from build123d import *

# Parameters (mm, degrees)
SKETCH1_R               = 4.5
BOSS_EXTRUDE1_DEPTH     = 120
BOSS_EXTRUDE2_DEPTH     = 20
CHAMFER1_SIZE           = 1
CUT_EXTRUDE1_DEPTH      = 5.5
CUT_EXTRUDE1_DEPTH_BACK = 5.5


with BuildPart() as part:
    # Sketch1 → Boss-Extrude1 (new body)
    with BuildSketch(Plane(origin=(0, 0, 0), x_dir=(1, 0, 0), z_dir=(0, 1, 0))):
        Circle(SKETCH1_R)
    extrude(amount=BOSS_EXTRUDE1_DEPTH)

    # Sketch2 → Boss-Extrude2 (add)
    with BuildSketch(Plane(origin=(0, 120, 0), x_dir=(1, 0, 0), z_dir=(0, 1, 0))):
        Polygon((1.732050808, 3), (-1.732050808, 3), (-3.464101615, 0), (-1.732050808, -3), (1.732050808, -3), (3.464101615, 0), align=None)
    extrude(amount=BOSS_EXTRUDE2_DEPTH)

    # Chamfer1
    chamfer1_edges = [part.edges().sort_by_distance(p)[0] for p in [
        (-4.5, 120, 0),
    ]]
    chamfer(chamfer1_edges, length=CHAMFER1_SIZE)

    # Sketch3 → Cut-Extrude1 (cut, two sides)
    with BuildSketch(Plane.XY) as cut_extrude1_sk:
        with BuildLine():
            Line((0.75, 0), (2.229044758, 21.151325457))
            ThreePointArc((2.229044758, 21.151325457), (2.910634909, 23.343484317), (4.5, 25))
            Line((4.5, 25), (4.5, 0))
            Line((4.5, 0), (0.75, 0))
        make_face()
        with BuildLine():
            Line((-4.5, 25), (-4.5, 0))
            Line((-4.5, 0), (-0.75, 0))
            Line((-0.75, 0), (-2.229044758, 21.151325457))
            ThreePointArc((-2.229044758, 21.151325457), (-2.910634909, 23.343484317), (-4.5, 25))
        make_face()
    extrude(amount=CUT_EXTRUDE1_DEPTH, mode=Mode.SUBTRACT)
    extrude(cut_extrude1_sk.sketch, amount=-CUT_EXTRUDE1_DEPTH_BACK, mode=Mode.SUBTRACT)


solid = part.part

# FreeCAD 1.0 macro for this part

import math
import FreeCAD as App
import Part
import Sketcher
Q = App.Units.Quantity


def edges_at(feature, points):
    """Names of the edges that pass closest to the given points."""
    edges = feature.Shape.Edges
    near = lambda p: min(range(len(edges)), key=lambda i: edges[i].distToShape(Part.Vertex(*p))[0])
    return sorted({f"Edge{near(p) + 1}" for p in points})


def add_polygon(sketch, points):
    """Adds a closed chain of lines whose ends are joined by coincident constraints."""
    first, n = sketch.GeometryCount, len(points)
    for a, b in zip(points, points[1:] + points[:1]):
        sketch.addGeometry(Part.LineSegment(App.Vector(*a, 0), App.Vector(*b, 0)), False)
    for i in range(n):
        sketch.addConstraint(Sketcher.Constraint("Coincident", first + i, 2, first + (i + 1) % n, 1))

doc = App.newDocument("Part")
body = doc.addObject("PartDesign::Body", "Body")

# Sketch on XZ plane
sketch1 = body.newObject("Sketcher::SketchObject", "Sketch")
sketch1.AttachmentSupport = (doc.getObject("XZ_Plane"), [""])
sketch1.MapMode = "FlatFace"
sketch1.addGeometry(Part.Circle(App.Vector(0, 0, 0), App.Vector(0, 0, 1), 4.5), False)
sketch1.addConstraint([
    Sketcher.Constraint("Coincident", 0, 3, -1, 1),
    Sketcher.Constraint("Diameter", 0, Q("9 mm")),
])
pad1 = body.newObject("PartDesign::Pad", "Pad")
pad1.Profile = sketch1
pad1.Length = 120
pad1.Reversed = True

# Sketch on XZ plane
sketch2 = body.newObject("Sketcher::SketchObject", "Sketch001")
sketch2.AttachmentSupport = (doc.getObject("XZ_Plane"), [""])
sketch2.MapMode = "FlatFace"
sketch2.AttachmentOffset = App.Placement(App.Vector(0, 0, -120), App.Rotation())
add_polygon(sketch2, [(1.732051, -3), (-1.732051, -3), (-3.464102, 0), (-1.732051, 3), (1.732051, 3), (3.464102, 0)])  # lines 0-5
sketch2.addConstraint([
    Sketcher.Constraint("Horizontal", 0),
    Sketcher.Constraint("Horizontal", 3),
    Sketcher.Constraint("Symmetric", 0, 2, 3, 2, -1, 1),
    Sketcher.Constraint("Symmetric", 1, 2, 4, 2, -1, 1),
    Sketcher.Constraint("PointOnObject", 1, 2, -1),
    Sketcher.Constraint("Parallel", 2, 5),
    Sketcher.Constraint("Vertical", 0, 2, 2, 2),
    Sketcher.Constraint("Angle", 1, Q("120 deg")),
    Sketcher.Constraint("DistanceY", 0, 2, -1, 1, Q("3 mm")),
    Sketcher.Constraint("DistanceX", 0, 2, 0, 1, Q("3.464102 mm")),
])
pad2 = body.newObject("PartDesign::Pad", "Pad001")
pad2.Profile = sketch2
pad2.Length = 20
pad2.Reversed = True
doc.recompute()

chamfer = body.newObject("PartDesign::Chamfer", "Chamfer")
chamfer.Base = (pad2, edges_at(pad2, [(-4.5, 120, 0)]))
chamfer.Size = 1

# Sketch on XY plane
sketch3 = body.newObject("Sketcher::SketchObject", "Sketch002")
sketch3.AttachmentSupport = (doc.getObject("XY_Plane"), [""])
sketch3.MapMode = "FlatFace"
sketch3.addGeometry([
    Part.LineSegment(App.Vector(2.229045, 21.151325, 0), App.Vector(0.75, 0, 0)),  # 0
    Part.LineSegment(App.Vector(0.75, 0, 0), App.Vector(4.5, 0, 0)),  # 1
    Part.LineSegment(App.Vector(4.5, 0, 0), App.Vector(4.5, 25, 0)),  # 2
    Part.ArcOfCircle(Part.Circle(App.Vector(7.216865, 20.802543, 0), App.Vector(0, 0, 1), 5), math.radians(122.91355), math.radians(176)),  # 3
    Part.LineSegment(App.Vector(-4.5, 25, 0), App.Vector(-4.5, 0, 0)),  # 4
    Part.LineSegment(App.Vector(-4.5, 0, 0), App.Vector(-0.75, 0, 0)),  # 5
    Part.LineSegment(App.Vector(-0.75, 0, 0), App.Vector(-2.229045, 21.151325, 0)),  # 6
    Part.ArcOfCircle(Part.Circle(App.Vector(-7.216865, 20.802543, 0), App.Vector(0, 0, 1), 5), math.radians(4), math.radians(57.08645)),  # 7
], False)
sketch3.addConstraint([
    Sketcher.Constraint("Coincident", 0, 2, 1, 1),
    Sketcher.Constraint("Coincident", 1, 2, 2, 1),
    Sketcher.Constraint("Coincident", 2, 2, 3, 1),
    Sketcher.Constraint("Tangent", 3, 2, 0, 1),
    Sketcher.Constraint("Coincident", 4, 2, 5, 1),
    Sketcher.Constraint("Coincident", 5, 2, 6, 1),
    Sketcher.Constraint("Tangent", 6, 2, 7, 1),
    Sketcher.Constraint("Coincident", 7, 2, 4, 1),
    Sketcher.Constraint("Horizontal", 1),
    Sketcher.Constraint("Vertical", 2),
    Sketcher.Constraint("Vertical", 4),
    Sketcher.Constraint("Horizontal", 5),
    Sketcher.Constraint("Equal", 3, 7),
    Sketcher.Constraint("Symmetric", 1, 2, 4, 2, -1, 1),
    Sketcher.Constraint("Symmetric", 3, 3, 7, 3, -2),
    Sketcher.Constraint("Symmetric", 0, 2, 5, 2, -2),
    Sketcher.Constraint("Radius", 3, Q("5 mm")),
    Sketcher.Constraint("DistanceY", 2, 1, 2, 2, Q("25 mm")),
    Sketcher.Constraint("Angle", 0, Q("-94 deg")),
    Sketcher.Constraint("DistanceX", 4, 2, 1, 2, Q("9 mm")),
    Sketcher.Constraint("DistanceX", 1, 1, 1, 2, Q("3.75 mm")),
])
pocket1 = body.newObject("PartDesign::Pocket", "Pocket")
pocket1.Profile = sketch3
pocket1.Type = "ThroughAll"
pocket1.Midplane = True

doc.recompute()
